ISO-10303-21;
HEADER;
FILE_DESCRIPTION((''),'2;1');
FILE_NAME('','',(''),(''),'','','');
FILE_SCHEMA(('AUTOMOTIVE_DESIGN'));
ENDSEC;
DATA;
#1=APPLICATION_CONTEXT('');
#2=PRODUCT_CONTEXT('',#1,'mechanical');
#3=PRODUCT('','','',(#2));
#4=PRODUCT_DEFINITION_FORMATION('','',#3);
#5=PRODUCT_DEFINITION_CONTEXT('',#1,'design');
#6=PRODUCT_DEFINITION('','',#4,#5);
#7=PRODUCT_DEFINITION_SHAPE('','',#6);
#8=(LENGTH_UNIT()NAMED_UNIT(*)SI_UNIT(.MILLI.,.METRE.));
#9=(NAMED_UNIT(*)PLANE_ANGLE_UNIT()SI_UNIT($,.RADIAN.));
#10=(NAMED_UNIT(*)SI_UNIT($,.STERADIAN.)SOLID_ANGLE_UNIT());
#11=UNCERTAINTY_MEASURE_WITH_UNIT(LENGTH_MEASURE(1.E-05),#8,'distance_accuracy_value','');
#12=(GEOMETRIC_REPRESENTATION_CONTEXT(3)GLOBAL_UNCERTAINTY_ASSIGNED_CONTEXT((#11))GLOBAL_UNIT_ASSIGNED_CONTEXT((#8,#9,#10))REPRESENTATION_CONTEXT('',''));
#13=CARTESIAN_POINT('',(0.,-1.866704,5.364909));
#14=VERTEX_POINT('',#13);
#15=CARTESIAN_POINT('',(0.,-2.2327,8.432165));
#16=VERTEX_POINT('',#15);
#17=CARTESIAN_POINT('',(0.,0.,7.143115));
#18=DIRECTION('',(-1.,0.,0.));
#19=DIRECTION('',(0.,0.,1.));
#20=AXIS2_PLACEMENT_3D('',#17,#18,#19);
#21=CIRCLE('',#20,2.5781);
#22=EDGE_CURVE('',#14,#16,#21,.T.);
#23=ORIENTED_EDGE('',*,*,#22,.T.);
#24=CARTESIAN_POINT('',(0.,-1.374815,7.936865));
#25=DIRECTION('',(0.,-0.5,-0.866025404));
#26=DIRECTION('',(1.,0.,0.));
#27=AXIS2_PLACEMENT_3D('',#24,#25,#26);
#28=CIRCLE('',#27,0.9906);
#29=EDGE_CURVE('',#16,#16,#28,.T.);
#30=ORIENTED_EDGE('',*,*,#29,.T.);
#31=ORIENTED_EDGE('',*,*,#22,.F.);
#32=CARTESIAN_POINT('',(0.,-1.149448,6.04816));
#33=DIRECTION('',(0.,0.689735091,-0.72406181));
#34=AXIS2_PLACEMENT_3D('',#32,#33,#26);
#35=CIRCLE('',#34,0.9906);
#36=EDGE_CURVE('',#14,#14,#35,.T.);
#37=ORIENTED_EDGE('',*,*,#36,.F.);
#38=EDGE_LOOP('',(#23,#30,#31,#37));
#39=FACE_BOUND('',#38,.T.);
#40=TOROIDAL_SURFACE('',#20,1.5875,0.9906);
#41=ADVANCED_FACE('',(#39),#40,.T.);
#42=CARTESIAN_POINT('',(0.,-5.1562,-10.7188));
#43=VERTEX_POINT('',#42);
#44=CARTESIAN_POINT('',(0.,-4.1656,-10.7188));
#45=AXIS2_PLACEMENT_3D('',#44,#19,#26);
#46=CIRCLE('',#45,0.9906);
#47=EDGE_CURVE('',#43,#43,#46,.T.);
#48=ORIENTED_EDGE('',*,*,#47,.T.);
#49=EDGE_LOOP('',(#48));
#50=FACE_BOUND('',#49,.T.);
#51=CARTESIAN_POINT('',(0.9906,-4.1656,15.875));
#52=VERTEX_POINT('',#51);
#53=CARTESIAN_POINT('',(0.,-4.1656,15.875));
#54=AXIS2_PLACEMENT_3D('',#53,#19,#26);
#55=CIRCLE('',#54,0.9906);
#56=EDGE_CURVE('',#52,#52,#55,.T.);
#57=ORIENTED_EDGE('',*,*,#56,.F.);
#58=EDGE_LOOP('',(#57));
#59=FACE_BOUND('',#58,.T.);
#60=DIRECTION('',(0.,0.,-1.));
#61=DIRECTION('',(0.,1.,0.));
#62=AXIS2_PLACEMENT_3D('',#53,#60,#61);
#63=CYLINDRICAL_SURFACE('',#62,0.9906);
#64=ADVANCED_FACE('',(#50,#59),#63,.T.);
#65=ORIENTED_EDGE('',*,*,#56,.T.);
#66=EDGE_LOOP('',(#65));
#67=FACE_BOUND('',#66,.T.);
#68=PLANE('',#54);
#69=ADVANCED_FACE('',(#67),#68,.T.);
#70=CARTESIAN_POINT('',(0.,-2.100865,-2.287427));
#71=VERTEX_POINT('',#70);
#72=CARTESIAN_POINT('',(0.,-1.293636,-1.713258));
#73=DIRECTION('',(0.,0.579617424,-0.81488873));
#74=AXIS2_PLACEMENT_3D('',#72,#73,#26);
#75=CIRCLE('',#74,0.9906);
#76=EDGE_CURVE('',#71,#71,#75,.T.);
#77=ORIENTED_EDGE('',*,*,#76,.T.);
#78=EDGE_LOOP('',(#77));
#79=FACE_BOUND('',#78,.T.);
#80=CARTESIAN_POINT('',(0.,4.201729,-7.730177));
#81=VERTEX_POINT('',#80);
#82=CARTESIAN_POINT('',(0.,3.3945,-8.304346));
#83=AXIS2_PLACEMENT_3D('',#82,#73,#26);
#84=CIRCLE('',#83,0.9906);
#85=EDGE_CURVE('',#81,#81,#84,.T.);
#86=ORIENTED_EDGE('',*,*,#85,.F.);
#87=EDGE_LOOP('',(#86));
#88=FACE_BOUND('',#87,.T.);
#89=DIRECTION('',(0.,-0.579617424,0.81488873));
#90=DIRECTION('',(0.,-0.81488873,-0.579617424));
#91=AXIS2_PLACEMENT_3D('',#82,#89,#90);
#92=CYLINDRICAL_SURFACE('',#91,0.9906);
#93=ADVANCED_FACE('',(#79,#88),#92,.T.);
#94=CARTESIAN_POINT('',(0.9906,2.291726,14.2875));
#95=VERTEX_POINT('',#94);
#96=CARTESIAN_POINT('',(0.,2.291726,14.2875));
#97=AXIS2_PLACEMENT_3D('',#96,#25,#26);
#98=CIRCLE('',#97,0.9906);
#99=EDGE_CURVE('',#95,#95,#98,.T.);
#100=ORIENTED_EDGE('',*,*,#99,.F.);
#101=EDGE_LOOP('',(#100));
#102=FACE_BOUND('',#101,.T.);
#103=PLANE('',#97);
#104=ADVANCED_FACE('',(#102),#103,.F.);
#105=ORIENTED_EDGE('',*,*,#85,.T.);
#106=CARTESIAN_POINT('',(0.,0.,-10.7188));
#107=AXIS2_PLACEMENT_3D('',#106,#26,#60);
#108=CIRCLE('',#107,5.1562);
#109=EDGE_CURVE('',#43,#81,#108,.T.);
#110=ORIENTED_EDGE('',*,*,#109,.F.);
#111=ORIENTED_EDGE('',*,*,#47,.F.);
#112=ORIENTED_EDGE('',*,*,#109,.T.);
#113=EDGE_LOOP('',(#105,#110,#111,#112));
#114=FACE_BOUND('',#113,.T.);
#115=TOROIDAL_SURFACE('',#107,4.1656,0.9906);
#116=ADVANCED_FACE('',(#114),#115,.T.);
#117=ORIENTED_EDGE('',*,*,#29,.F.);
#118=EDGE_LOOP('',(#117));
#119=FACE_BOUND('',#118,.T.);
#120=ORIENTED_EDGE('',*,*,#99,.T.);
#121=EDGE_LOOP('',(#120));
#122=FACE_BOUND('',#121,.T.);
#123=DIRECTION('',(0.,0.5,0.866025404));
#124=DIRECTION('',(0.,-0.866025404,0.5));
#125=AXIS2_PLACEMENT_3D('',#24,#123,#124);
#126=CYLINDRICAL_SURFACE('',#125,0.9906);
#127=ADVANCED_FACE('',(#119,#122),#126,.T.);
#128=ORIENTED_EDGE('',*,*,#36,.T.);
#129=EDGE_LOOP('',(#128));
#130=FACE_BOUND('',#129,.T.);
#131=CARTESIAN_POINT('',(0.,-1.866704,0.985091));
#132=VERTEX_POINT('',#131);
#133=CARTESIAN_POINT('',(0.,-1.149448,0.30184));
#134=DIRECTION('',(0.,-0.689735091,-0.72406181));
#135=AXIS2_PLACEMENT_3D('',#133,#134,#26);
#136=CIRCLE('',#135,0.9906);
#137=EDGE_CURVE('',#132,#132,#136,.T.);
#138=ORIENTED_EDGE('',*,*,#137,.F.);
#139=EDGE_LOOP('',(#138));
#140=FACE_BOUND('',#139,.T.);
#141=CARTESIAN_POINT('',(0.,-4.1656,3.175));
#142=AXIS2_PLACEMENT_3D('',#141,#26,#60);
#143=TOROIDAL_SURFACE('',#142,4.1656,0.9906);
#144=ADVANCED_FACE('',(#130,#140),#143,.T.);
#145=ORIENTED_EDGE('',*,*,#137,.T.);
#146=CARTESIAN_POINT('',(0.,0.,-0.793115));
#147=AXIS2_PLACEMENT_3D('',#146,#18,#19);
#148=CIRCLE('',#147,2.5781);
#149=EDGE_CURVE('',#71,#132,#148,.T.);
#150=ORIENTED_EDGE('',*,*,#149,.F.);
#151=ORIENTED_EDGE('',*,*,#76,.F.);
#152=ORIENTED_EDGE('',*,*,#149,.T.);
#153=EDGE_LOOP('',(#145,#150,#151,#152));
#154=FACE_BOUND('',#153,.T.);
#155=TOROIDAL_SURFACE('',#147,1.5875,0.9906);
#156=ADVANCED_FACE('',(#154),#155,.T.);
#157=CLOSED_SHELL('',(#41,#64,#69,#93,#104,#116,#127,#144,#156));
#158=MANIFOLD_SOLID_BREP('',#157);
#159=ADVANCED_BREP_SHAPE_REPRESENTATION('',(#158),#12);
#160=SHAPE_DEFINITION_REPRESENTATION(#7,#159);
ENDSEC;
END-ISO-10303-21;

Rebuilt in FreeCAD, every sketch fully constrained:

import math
import FreeCAD as App
import Part
import Sketcher
from FreeCAD import Vector
Q = App.Units.Quantity

doc = App.newDocument("Part")
body = doc.addObject("PartDesign::Body", "Body")

sketch1 = doc.addObject("Sketcher::SketchObject", "Sketch")
body.addObject(sketch1)
sketch1.AttachmentSupport = (doc.XY_Plane, [""])
sketch1.MapMode = "FlatFace"
sketch1.AttachmentOffset = App.Placement(Vector(0, 0, 0.625 * 25.4), App.Rotation())
sketch1.addGeometry(Part.Circle(Vector(0, -4.1656, 0), Vector(0, 0, 1), 0.9906), False)
sketch1.addConstraint([
    Sketcher.Constraint("PointOnObject", 0, 3, -2),
    Sketcher.Constraint("Diameter", 0, Q("0.078 in")),
    Sketcher.Constraint("DistanceY", 0, 3, -1, 1, Q("0.164 in")),
])

sketch2 = doc.addObject("Sketcher::SketchObject", "Sketch001")
body.addObject(sketch2)
sketch2.AttachmentSupport = (doc.YZ_Plane, [""])
sketch2.MapMode = "FlatFace"
sketch2.addGeometry([
    Part.LineSegment(Vector(2.291726, 14.2875, 0), Vector(-1.374815, 7.936865, 0)),
    Part.ArcOfCircle(Part.Circle(Vector(0, 7.143115, 0), Vector(0, 0, 1), 1.5875), math.radians(150), math.radians(223.609143)),
    Part.ArcOfCircle(Part.Circle(Vector(-4.1656, 3.175, 0), Vector(0, 0, 1), 4.1656), math.radians(-43.609143), math.radians(43.609143)),
    Part.ArcOfCircle(Part.Circle(Vector(0, -0.793115, 0), Vector(0, 0, 1), 1.5875), math.radians(136.390857), math.radians(215.423639)),
    Part.LineSegment(Vector(-1.293636, -1.713258, 0), Vector(3.3945, -8.304346, 0)),
    Part.ArcOfCircle(Part.Circle(Vector(0, -10.7188, 0), Vector(0, 0, 1), 4.1656), math.radians(180), math.radians(395.423639)),
    Part.LineSegment(Vector(-4.1656, -10.7188, 0), Vector(-4.1656, 15.875, 0)),
], False)
sketch2.addConstraint([
    Sketcher.Constraint("Tangent", 0, 2, 1, 1),
    Sketcher.Constraint("Tangent", 1, 2, 2, 2),
    Sketcher.Constraint("Tangent", 2, 1, 3, 1),
    Sketcher.Constraint("Tangent", 3, 2, 4, 1),
    Sketcher.Constraint("Tangent", 4, 2, 5, 2),
    Sketcher.Constraint("Tangent", 5, 1, 6, 1),
    Sketcher.Constraint("Vertical", 6),
    Sketcher.Constraint("Equal", 1, 3),
    Sketcher.Constraint("Equal", 2, 5),
    Sketcher.Constraint("PointOnObject", 1, 3, -2),
    Sketcher.Constraint("PointOnObject", 3, 3, -2),
    Sketcher.Constraint("PointOnObject", 5, 3, -2),
    Sketcher.Constraint("Vertical", 2, 3, 5, 1),
    Sketcher.Constraint("Angle", 0, Q("-120 deg")),
    Sketcher.Constraint("Radius", 1, Q("0.0625 in")),
    Sketcher.Constraint("Radius", 2, Q("0.164 in")),
    Sketcher.Constraint("DistanceY", 2, 3, 6, 2, Q("0.5 in")),
    Sketcher.Constraint("DistanceY", 6, 1, 6, 2, Q("1.047 in")),
    Sketcher.Constraint("DistanceY", -1, 1, 2, 3, Q("0.125 in")),
    Sketcher.Constraint("DistanceY", -1, 1, 0, 1, Q("0.5625 in")),
])
doc.recompute()

additivepipe = doc.addObject("PartDesign::AdditivePipe", "AdditivePipe")
body.addObject(additivepipe)
additivepipe.Profile = sketch1
additivepipe.Spine = (sketch2, ["Edge1", "Edge2", "Edge3", "Edge4", "Edge5", "Edge6", "Edge7"])

doc.recompute()
